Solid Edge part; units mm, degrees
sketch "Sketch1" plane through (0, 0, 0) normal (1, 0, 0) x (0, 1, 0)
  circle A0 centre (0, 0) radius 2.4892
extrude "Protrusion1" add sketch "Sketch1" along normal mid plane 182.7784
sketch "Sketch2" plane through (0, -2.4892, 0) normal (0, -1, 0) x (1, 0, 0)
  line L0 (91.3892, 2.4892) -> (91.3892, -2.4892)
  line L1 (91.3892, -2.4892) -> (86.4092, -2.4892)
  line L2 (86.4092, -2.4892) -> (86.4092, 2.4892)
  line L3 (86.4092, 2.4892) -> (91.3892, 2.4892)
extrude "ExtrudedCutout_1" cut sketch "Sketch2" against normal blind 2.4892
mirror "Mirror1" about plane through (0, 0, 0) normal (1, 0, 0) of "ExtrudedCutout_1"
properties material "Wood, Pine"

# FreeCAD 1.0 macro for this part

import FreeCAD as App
import Part
import Sketcher
from FreeCAD import Vector
Q = App.Units.Quantity

doc = App.newDocument("Part")
body = doc.addObject("PartDesign::Body", "Body")

# Sketch on YZ plane
sketch1 = body.newObject("Sketcher::SketchObject", "Sketch")
sketch1.AttachmentSupport = (doc.getObject("YZ_Plane"), [""])
sketch1.MapMode = "FlatFace"
sketch1.addGeometry(Part.Circle(Vector(0, 0, 0), Vector(0, 0, 1), 2.5), False)
sketch1.addConstraint(Sketcher.Constraint("Coincident", 0, 3, -1, 1))
sketch1.addConstraint(Sketcher.Constraint("Diameter", 0, Q("0.196 in")))
pad1 = body.newObject("PartDesign::Pad", "Pad")
pad1.Profile = sketch1
pad1.Length = Q("7.196 in")
pad1.Midplane = True

# Sketch on XZ plane
sketch2 = body.newObject("Sketcher::SketchObject", "Sketch001")
sketch2.AttachmentSupport = (doc.getObject("XZ_Plane"), [""])
sketch2.MapMode = "FlatFace"
sketch2.AttachmentOffset = App.Placement(Vector(0, 0, 0.098 * 25.4), App.Rotation())
sketch2.addGeometry(Part.LineSegment(Vector(91.4, -2.5, 0), Vector(91.4, 2.5, 0)), False)
sketch2.addGeometry(Part.LineSegment(Vector(91.4, 2.5, 0), Vector(86.4, 2.5, 0)), False)
sketch2.addGeometry(Part.LineSegment(Vector(86.4, 2.5, 0), Vector(86.4, -2.5, 0)), False)
sketch2.addGeometry(Part.LineSegment(Vector(86.4, -2.5, 0), Vector(91.4, -2.5, 0)), False)
sketch2.addConstraint(Sketcher.Constraint("Coincident", 0, 2, 1, 1))
sketch2.addConstraint(Sketcher.Constraint("Coincident", 1, 2, 2, 1))
sketch2.addConstraint(Sketcher.Constraint("Coincident", 2, 2, 3, 1))
sketch2.addConstraint(Sketcher.Constraint("Coincident", 3, 2, 0, 1))
sketch2.addConstraint(Sketcher.Constraint("Vertical", 0))
sketch2.addConstraint(Sketcher.Constraint("Horizontal", 1))
sketch2.addConstraint(Sketcher.Constraint("Vertical", 2))
sketch2.addConstraint(Sketcher.Constraint("Horizontal", 3))
sketch2.addConstraint(Sketcher.Constraint("DistanceY", 0, 1, 0, 2, Q("0.196 in")))
sketch2.addConstraint(Sketcher.Constraint("DistanceX", -1, 1, 0, 2, Q("3.598 in")))
sketch2.addConstraint(Sketcher.Constraint("DistanceY", -1, 1, 0, 2, Q("0.098 in")))
sketch2.addConstraint(Sketcher.Constraint("DistanceX", 1, 2, 1, 1, 4.98))
pocket1 = body.newObject("PartDesign::Pocket", "Pocket")
pocket1.Profile = sketch2
pocket1.Length = Q("0.098 in")
doc.recompute()

mirrored = body.newObject("PartDesign::Mirrored", "Mirrored")
mirrored.Originals = [pocket1]
mirrored.MirrorPlane = (doc.getObject("YZ_Plane"), [""])
body.Tip = mirrored

doc.recompute()
